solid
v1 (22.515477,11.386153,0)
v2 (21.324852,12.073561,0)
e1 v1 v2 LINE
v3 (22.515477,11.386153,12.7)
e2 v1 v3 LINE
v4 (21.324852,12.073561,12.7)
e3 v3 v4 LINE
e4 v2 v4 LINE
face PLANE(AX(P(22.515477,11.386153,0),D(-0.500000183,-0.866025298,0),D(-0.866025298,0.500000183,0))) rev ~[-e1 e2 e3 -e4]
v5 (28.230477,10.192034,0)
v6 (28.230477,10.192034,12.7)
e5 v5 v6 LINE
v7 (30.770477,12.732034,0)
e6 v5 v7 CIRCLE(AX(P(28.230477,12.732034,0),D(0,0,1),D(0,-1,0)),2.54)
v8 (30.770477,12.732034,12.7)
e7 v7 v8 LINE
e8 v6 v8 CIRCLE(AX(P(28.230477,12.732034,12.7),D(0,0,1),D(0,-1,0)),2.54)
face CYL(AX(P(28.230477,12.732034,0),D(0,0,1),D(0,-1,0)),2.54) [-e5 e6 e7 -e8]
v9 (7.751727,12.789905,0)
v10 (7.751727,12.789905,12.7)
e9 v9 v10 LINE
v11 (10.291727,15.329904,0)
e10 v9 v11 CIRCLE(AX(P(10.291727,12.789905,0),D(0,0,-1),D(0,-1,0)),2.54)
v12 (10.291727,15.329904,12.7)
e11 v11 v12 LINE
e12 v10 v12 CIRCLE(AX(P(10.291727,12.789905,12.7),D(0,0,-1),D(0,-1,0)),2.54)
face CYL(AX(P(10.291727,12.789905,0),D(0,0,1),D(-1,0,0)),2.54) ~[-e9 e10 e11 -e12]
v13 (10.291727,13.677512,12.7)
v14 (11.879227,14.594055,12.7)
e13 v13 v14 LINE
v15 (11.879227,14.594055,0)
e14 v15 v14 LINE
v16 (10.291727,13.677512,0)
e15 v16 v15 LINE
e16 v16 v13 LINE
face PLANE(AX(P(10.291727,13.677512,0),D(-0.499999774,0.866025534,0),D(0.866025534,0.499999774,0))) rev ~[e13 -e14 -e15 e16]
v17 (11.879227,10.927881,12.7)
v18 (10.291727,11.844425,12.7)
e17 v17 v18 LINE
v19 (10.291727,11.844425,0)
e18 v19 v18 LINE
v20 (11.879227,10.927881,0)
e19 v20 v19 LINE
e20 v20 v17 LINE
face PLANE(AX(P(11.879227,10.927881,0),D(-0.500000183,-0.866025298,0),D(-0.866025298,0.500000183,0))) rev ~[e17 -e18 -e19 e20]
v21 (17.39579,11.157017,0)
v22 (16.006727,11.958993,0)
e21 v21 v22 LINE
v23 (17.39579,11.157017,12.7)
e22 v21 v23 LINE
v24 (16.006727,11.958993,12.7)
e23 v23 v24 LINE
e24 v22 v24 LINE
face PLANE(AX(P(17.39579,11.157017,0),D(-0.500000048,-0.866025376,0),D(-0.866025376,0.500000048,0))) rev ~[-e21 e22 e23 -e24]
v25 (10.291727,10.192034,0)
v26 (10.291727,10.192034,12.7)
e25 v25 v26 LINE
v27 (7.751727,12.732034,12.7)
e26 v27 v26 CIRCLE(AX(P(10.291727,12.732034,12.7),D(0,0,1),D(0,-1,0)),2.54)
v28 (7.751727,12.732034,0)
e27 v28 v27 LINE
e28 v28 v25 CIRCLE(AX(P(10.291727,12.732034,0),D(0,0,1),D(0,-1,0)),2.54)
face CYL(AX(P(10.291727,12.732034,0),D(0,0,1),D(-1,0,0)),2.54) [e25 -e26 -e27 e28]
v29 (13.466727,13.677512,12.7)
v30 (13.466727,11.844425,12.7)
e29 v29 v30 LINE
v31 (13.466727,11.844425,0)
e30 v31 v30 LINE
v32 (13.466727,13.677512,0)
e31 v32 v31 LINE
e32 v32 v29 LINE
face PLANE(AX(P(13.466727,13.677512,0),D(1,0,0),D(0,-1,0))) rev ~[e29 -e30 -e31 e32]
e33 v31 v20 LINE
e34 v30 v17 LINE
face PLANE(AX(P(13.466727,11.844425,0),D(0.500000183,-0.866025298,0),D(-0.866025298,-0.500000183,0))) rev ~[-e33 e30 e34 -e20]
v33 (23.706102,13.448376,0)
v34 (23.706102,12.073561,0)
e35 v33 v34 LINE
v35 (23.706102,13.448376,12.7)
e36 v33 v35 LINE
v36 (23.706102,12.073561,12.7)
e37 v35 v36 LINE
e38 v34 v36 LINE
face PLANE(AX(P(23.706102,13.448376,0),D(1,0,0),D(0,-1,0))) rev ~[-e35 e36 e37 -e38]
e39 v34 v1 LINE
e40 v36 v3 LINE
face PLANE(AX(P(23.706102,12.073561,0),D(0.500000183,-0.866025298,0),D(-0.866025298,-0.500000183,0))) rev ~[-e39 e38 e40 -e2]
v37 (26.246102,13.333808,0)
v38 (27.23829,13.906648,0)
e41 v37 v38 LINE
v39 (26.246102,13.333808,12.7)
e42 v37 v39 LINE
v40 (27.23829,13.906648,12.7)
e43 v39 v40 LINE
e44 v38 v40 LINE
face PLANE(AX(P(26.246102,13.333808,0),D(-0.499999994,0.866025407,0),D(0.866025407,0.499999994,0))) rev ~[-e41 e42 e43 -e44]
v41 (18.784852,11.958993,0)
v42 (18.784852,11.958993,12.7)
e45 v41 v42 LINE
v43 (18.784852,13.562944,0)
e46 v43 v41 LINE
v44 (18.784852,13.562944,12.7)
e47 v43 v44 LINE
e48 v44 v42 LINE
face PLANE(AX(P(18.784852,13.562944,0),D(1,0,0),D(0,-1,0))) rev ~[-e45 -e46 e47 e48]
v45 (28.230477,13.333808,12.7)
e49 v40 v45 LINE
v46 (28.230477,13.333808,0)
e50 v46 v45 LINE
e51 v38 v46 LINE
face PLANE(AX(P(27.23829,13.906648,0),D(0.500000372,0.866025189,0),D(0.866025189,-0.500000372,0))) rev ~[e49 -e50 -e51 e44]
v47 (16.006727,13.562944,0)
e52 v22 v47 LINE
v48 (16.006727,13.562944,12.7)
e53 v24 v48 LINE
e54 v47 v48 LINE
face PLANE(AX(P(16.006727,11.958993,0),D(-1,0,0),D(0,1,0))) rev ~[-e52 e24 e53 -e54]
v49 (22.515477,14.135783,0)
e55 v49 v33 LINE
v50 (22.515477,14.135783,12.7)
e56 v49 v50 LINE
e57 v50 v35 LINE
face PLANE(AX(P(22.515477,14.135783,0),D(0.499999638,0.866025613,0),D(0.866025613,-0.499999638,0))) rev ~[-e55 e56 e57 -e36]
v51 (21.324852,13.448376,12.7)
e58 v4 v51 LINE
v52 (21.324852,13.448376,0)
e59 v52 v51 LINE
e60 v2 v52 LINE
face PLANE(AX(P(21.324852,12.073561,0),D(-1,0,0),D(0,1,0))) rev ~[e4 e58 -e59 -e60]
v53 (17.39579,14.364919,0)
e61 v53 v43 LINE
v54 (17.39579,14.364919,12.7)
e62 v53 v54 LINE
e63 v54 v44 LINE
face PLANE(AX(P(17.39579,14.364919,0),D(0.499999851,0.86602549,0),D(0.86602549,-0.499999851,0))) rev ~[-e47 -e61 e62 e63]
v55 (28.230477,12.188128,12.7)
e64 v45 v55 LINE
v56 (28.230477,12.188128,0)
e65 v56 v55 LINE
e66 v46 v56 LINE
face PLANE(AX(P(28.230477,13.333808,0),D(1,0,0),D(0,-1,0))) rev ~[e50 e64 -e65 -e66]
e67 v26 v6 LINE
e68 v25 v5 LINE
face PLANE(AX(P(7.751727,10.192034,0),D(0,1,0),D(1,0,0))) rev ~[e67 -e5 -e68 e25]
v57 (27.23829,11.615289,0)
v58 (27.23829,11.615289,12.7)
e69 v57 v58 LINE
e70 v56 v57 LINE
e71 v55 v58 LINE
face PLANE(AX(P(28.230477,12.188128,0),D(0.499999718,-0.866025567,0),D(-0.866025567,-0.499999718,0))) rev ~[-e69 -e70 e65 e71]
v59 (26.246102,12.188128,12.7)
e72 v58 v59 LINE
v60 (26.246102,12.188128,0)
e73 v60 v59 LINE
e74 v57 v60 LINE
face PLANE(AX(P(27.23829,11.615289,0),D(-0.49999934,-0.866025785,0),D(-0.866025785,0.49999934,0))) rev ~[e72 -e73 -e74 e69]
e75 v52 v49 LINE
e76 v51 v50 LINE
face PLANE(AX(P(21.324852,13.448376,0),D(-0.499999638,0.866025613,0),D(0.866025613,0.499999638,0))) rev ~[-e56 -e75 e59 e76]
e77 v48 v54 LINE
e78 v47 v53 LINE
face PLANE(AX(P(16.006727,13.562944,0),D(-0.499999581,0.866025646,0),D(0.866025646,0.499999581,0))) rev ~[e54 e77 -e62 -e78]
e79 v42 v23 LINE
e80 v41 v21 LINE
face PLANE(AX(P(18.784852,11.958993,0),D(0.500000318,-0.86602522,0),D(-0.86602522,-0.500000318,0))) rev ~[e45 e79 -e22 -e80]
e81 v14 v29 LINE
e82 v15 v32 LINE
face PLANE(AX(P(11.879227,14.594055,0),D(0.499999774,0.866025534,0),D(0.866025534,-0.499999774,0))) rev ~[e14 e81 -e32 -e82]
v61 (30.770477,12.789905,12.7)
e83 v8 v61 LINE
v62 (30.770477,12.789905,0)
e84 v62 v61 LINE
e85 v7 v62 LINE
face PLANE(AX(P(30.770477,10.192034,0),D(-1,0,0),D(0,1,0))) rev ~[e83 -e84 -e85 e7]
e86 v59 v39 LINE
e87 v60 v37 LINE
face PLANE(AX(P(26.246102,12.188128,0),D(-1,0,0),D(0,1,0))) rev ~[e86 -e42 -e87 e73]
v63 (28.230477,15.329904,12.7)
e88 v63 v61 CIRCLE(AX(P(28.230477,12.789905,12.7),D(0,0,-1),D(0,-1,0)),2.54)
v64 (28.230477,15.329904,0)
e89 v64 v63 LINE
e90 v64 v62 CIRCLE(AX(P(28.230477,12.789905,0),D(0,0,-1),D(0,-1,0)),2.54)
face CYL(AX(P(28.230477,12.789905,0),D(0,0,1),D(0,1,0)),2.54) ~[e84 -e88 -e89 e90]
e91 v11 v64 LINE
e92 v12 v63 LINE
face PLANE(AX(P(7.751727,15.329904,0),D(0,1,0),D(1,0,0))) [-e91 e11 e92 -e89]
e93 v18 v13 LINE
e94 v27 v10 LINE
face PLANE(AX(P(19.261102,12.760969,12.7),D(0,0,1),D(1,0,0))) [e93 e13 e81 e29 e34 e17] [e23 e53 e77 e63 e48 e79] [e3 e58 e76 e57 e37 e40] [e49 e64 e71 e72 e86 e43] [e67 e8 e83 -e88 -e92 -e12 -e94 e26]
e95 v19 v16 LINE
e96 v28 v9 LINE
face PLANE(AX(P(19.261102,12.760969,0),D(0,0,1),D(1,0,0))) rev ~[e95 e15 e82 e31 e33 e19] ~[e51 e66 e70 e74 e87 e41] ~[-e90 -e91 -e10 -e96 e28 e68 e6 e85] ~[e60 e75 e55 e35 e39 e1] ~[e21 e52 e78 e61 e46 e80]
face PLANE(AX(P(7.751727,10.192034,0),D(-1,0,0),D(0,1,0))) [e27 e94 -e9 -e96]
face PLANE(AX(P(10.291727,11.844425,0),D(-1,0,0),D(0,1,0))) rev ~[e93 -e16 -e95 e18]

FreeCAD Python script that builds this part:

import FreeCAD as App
import Part
import Sketcher
from FreeCAD import Vector
Q = App.Units.Quantity


def edges_at(feature, points):
    """Names of the edges that pass closest to the given points."""
    edges = feature.Shape.Edges
    near = lambda p: min(range(len(edges)), key=lambda i: edges[i].distToShape(Part.Vertex(*p))[0])
    return sorted({f"Edge{near(p) + 1}" for p in points})


def add_polygon(sketch, points):
    """Adds a closed chain of lines whose ends are joined by coincident constraints."""
    first, n = sketch.GeometryCount, len(points)
    for a, b in zip(points, points[1:] + points[:1]):
        sketch.addGeometry(Part.LineSegment(App.Vector(*a, 0), App.Vector(*b, 0)), False)
    for i in range(n):
        sketch.addConstraint(Sketcher.Constraint("Coincident", first + i, 2, first + (i + 1) % n, 1))

doc = App.newDocument("Part")
params = doc.addObject("Spreadsheet::Sheet", "Params")
for row, (alias, value) in enumerate([
    ("sketch1_width", "0.90625 in"),
    ("pad1_length", "0.5 in"),
    ("fillet_radius", "0.1 in"),
], start=1):
    params.set(f"A{row}", alias)
    params.set(f"B{row}", "=" + value)
    params.setAlias(f"B{row}", alias)

body = doc.addObject("PartDesign::Body", "Body")

# Sketch on XY plane
sketch1 = body.newObject("Sketcher::SketchObject", "Sketch")
sketch1.AttachmentSupport = (doc.getObject("XY_Plane"), [""])
sketch1.MapMode = "FlatFace"
add_polygon(sketch1, [(7.751727, 15.329904), (7.751727, 10.192034), (30.770477, 10.192034), (30.770477, 15.329904)])  # lines 0-3
add_polygon(sketch1, [(10.291727, 13.677512), (11.879227, 14.594055), (13.466727, 13.677512), (13.466727, 11.844425), (11.879227, 10.927881), (10.291727, 11.844425)])  # lines 4-9
add_polygon(sketch1, [(16.006727, 13.562944), (17.39579, 14.364919), (18.784852, 13.562944), (18.784852, 11.958993), (17.39579, 11.157017), (16.006727, 11.958993)])  # lines 10-15
add_polygon(sketch1, [(21.324852, 13.448376), (22.515477, 14.135783), (23.706102, 13.448376), (23.706102, 12.073561), (22.515477, 11.386153), (21.324852, 12.073561)])  # lines 16-21
add_polygon(sketch1, [(26.246102, 13.333808), (27.23829, 13.906648), (28.230477, 13.333808), (28.230477, 12.188128), (27.23829, 11.615289), (26.246102, 12.188128)])  # lines 22-27
sketch1.addConstraint([
    Sketcher.Constraint("Vertical", 0),
    Sketcher.Constraint("Horizontal", 1),
    Sketcher.Constraint("Vertical", 2),
    Sketcher.Constraint("Horizontal", 3),
    Sketcher.Constraint("Vertical", 6),
    Sketcher.Constraint("Vertical", 9),
    Sketcher.Constraint("Vertical", 12),
    Sketcher.Constraint("Vertical", 15),
    Sketcher.Constraint("Vertical", 18),
    Sketcher.Constraint("Vertical", 21),
    Sketcher.Constraint("Vertical", 24),
    Sketcher.Constraint("Vertical", 27),
    Sketcher.Constraint("Parallel", 4, 7),
    Sketcher.Constraint("Parallel", 5, 8),
    Sketcher.Constraint("Parallel", 7, 10),
    Sketcher.Constraint("Parallel", 8, 11),
    Sketcher.Constraint("Parallel", 10, 13),
    Sketcher.Constraint("Parallel", 11, 14),
    Sketcher.Constraint("Parallel", 13, 16),
    Sketcher.Constraint("Parallel", 14, 17),
    Sketcher.Constraint("Parallel", 16, 19),
    Sketcher.Constraint("Parallel", 17, 20),
    Sketcher.Constraint("Parallel", 19, 22),
    Sketcher.Constraint("Parallel", 20, 23),
    Sketcher.Constraint("Parallel", 22, 25),
    Sketcher.Constraint("Parallel", 23, 26),
    Sketcher.Constraint("Horizontal", 6, 2, 8, 2),
    Sketcher.Constraint("Horizontal", 5, 2, 9, 2),
    Sketcher.Constraint("Horizontal", 12, 2, 14, 2),
    Sketcher.Constraint("Horizontal", 11, 2, 15, 2),
    Sketcher.Constraint("Horizontal", 18, 2, 20, 2),
    Sketcher.Constraint("Horizontal", 17, 2, 21, 2),
    Sketcher.Constraint("Horizontal", 24, 2, 26, 2),
    Sketcher.Constraint("Horizontal", 23, 2, 27, 2),
    Sketcher.Constraint("Vertical", 4, 2, 7, 2),
    Sketcher.Constraint("Angle", 4, Q("29.999985 deg")),
    Sketcher.Constraint("DistanceX", 0, 2, 8, 2, Q("0.1 in")),
    Sketcher.Constraint("DistanceX", 6, 2, 14, 2, Q("0.1 in")),
    Sketcher.Constraint("DistanceX", 12, 2, 20, 2, Q("0.1 in")),
    Sketcher.Constraint("DistanceX", 23, 2, 2, 2, Q("0.1 in")),
    Sketcher.Constraint("DistanceX", 18, 2, 26, 2, Q("0.1 in")),
    Sketcher.Constraint("DistanceX", 1, 1, 1, 2, Q("0.90625 in")),
    Sketcher.Constraint("DistanceX", 4, 2, 5, 2, Q("0.0625 in")),
    Sketcher.Constraint("DistanceX", 14, 2, 12, 2, Q("0.109375 in")),
    Sketcher.Constraint("DistanceX", 16, 2, 17, 2, Q("0.046875 in")),
    Sketcher.Constraint("DistanceY", 0, 2, 0, 1, 5.137871),
    Sketcher.Constraint("DistanceY", 12, 2, 12, 1, 1.603951),
    Sketcher.Constraint("DistanceY", 24, 2, 24, 1, 1.14568),
    Sketcher.Constraint("DistanceY", 6, 2, 6, 1, 1.833087),
    Sketcher.Constraint("DistanceY", 18, 2, 18, 1, 1.374815),
    Sketcher.Constraint("DistanceY", -1, 1, 7, 2, 10.927881),
    Sketcher.Constraint("DistanceX", -1, 1, 10, 2, 17.39579),
    Sketcher.Constraint("DistanceY", -1, 1, 10, 2, 14.364919),
    Sketcher.Constraint("DistanceY", -1, 1, 18, 2, 12.073561),
    Sketcher.Constraint("DistanceY", -1, 1, 24, 2, 12.188128),
    Sketcher.Constraint("DistanceY", 4, 2, 3, 2, 0.735849),
])
sketch1.setExpression("Constraints[69]", "Params.sketch1_width")
pad1 = body.newObject("PartDesign::Pad", "Pad")
pad1.Profile = sketch1
pad1.setExpression("Length", "Params.pad1_length")
doc.recompute()

fillet = body.newObject("PartDesign::Fillet", "Fillet")
fillet.Base = (pad1, edges_at(pad1, [
    (30.77, 10.192, 6.35),
    (7.752, 10.192, 6.35),
    (7.752, 15.33, 6.35),
    (30.77, 15.33, 6.35),
]))
fillet.setExpression("Radius", "Params.fillet_radius")

doc.recompute()
